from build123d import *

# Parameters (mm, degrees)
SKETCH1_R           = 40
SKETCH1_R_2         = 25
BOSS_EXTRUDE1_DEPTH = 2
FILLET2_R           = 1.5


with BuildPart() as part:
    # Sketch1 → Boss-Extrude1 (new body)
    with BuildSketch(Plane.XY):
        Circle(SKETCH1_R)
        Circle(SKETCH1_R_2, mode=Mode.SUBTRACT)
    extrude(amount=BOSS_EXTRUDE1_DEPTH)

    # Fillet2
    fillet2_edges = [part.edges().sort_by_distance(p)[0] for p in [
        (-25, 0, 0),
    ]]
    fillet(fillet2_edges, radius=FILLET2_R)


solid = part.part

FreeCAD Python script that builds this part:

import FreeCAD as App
import Part
import Sketcher
from FreeCAD import Vector
Q = App.Units.Quantity


def edges_at(feature, points):
    """Names of the edges that pass closest to the given points."""
    edges = feature.Shape.Edges
    near = lambda p: min(range(len(edges)), key=lambda i: edges[i].distToShape(Part.Vertex(*p))[0])
    return sorted({f"Edge{near(p) + 1}" for p in points})

doc = App.newDocument("Part")
body = doc.addObject("PartDesign::Body", "Body")

sketch1 = body.newObject("Sketcher::SketchObject", "Sketch")
sketch1.AttachmentSupport = (doc.getObject("XY_Plane"), [""])
sketch1.MapMode = "FlatFace"
sketch1.addGeometry(Part.Circle(Vector(0, 0, 0), Vector(0, 0, 1), 40), False)
sketch1.addGeometry(Part.Circle(Vector(0, 0, 0), Vector(0, 0, 1), 25), False)
sketch1.addConstraint(Sketcher.Constraint("Coincident", 0, 3, -1, 1))
sketch1.addConstraint(Sketcher.Constraint("Coincident", 1, 3, -1, 1))
sketch1.addConstraint(Sketcher.Constraint("Diameter", 0, Q("80 mm")))
sketch1.addConstraint(Sketcher.Constraint("Diameter", 1, Q("50 mm")))
pad1 = body.newObject("PartDesign::Pad", "Pad")
pad1.Profile = sketch1
pad1.Length = 2
doc.recompute()

fillet = body.newObject("PartDesign::Fillet", "Fillet")
fillet.Base = (pad1, edges_at(pad1, [(-25, 0, 0)]))
fillet.Radius = 1.5

doc.recompute()
